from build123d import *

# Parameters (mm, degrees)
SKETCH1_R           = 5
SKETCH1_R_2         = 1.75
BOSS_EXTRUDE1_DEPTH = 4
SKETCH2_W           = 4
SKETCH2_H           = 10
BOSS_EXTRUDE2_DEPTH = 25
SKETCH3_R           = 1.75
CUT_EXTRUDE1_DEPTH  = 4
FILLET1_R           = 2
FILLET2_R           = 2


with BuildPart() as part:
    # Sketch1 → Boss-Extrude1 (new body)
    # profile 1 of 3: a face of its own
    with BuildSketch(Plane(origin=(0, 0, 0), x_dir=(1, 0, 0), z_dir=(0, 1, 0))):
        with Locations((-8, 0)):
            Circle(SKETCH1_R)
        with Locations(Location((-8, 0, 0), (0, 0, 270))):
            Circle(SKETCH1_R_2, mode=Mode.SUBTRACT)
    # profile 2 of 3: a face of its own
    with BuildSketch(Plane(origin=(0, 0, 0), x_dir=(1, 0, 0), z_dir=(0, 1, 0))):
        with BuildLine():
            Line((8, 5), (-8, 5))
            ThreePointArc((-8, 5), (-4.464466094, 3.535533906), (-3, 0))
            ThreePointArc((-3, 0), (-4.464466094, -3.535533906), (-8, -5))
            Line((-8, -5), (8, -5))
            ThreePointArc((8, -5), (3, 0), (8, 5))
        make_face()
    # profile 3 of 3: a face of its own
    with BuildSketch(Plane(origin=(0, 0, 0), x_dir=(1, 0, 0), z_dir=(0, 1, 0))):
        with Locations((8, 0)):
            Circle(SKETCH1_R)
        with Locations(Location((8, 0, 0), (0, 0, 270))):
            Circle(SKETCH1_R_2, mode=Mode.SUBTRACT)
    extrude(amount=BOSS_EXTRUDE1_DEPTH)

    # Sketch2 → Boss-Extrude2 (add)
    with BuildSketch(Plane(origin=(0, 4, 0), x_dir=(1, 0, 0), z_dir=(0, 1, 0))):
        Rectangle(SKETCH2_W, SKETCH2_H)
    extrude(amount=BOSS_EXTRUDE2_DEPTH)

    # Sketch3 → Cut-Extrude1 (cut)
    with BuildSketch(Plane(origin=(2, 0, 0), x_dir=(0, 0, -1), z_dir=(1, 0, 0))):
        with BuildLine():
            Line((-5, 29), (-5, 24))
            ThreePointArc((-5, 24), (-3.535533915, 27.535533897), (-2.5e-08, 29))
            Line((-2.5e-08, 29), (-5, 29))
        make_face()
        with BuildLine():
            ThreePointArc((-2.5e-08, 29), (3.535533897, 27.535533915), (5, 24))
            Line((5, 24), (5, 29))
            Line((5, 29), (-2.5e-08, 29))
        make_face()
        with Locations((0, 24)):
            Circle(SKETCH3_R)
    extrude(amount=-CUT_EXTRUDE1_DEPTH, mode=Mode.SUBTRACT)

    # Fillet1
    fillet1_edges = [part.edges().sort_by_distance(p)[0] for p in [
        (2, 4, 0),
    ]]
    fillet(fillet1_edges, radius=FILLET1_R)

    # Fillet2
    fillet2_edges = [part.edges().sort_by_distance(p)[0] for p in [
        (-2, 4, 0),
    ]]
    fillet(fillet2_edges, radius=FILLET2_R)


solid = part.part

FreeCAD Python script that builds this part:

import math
import FreeCAD as App
import Part
import Sketcher


def edges_at(feature, points):
    """Names of the edges that pass closest to the given points."""
    edges = feature.Shape.Edges
    near = lambda p: min(range(len(edges)), key=lambda i: edges[i].distToShape(Part.Vertex(*p))[0])
    return sorted({f"Edge{near(p) + 1}" for p in points})

doc = App.newDocument("Part")
body = doc.addObject("PartDesign::Body", "Body")

sketch1 = doc.addObject("Sketcher::SketchObject", "Sketch")
body.addObject(sketch1)
sketch1.AttachmentSupport = (doc.XZ_Plane, [""])
sketch1.MapMode = "FlatFace"
sketch1.addGeometry(Part.ArcOfCircle(Part.Circle(App.Vector(-8, 0, 0), App.Vector(0, 0, 1), 5), math.radians(90), math.radians(270)), False)
sketch1.addGeometry(Part.LineSegment(App.Vector(-8, 5, 0), App.Vector(8, 5, 0)), False)
sketch1.addGeometry(Part.ArcOfCircle(Part.Circle(App.Vector(8, 0, 0), App.Vector(0, 0, 1), 5), math.radians(-90), math.radians(90)), False)
sketch1.addGeometry(Part.LineSegment(App.Vector(8, -5, 0), App.Vector(-8, -5, 0)), False)
sketch1.addGeometry(Part.Circle(App.Vector(-8, 0, 0), App.Vector(0, 0, 1), 1.8), False)
sketch1.addGeometry(Part.Circle(App.Vector(8, 0, 0), App.Vector(0, 0, 1), 1.8), False)
sketch1.addConstraint(Sketcher.Constraint("Tangent", 0, 1, 1, 1))
sketch1.addConstraint(Sketcher.Constraint("Tangent", 1, 2, 2, 2))
sketch1.addConstraint(Sketcher.Constraint("Tangent", 2, 1, 3, 1))
sketch1.addConstraint(Sketcher.Constraint("Tangent", 3, 2, 0, 2))
sketch1.addConstraint(Sketcher.Constraint("Horizontal", 1))
sketch1.addConstraint(Sketcher.Constraint("Horizontal", 3))
sketch1.addConstraint(Sketcher.Constraint("Coincident", 4, 3, 0, 3))
sketch1.addConstraint(Sketcher.Constraint("Coincident", 5, 3, 2, 3))
sketch1.addConstraint(Sketcher.Constraint("Equal", 4, 5))
sketch1.addConstraint(Sketcher.Constraint("Symmetric", 0, 3, 2, 3, -1, 1))
sketch1.addConstraint(Sketcher.Constraint("Radius", 0, 5.0))
sketch1.addConstraint(Sketcher.Constraint("Diameter", 4, 3.5))
sketch1.addConstraint(Sketcher.Constraint("DistanceX", 1, 1, 1, 2, 16.0))
pad1 = doc.addObject("PartDesign::Pad", "Pad")
body.addObject(pad1)
pad1.Profile = sketch1
pad1.Length = 4
pad1.Reversed = True

sketch2 = doc.addObject("Sketcher::SketchObject", "Sketch001")
body.addObject(sketch2)
sketch2.AttachmentSupport = (doc.XZ_Plane, [""])
sketch2.MapMode = "FlatFace"
sketch2.AttachmentOffset = App.Placement(App.Vector(0, 0, -4), App.Rotation())
sketch2.addGeometry(Part.LineSegment(App.Vector(-2, -5, 0), App.Vector(-2, 5, 0)), False)
sketch2.addGeometry(Part.LineSegment(App.Vector(-2, 5, 0), App.Vector(2, 5, 0)), False)
sketch2.addGeometry(Part.LineSegment(App.Vector(2, 5, 0), App.Vector(2, -5, 0)), False)
sketch2.addGeometry(Part.LineSegment(App.Vector(2, -5, 0), App.Vector(-2, -5, 0)), False)
sketch2.addConstraint(Sketcher.Constraint("Coincident", 0, 2, 1, 1))
sketch2.addConstraint(Sketcher.Constraint("Coincident", 1, 2, 2, 1))
sketch2.addConstraint(Sketcher.Constraint("Coincident", 2, 2, 3, 1))
sketch2.addConstraint(Sketcher.Constraint("Coincident", 3, 2, 0, 1))
sketch2.addConstraint(Sketcher.Constraint("Vertical", 0))
sketch2.addConstraint(Sketcher.Constraint("Horizontal", 1))
sketch2.addConstraint(Sketcher.Constraint("Vertical", 2))
sketch2.addConstraint(Sketcher.Constraint("Horizontal", 3))
sketch2.addConstraint(Sketcher.Constraint("Symmetric", 0, 2, 2, 2, -1, 1))
sketch2.addConstraint(Sketcher.Constraint("DistanceX", 1, 1, 1, 2, 4.0))
sketch2.addConstraint(Sketcher.Constraint("DistanceY", 0, 1, 0, 2, 10.0))
pad2 = doc.addObject("PartDesign::Pad", "Pad001")
body.addObject(pad2)
pad2.Profile = sketch2
pad2.Length = 25
pad2.Reversed = True

sketch3 = doc.addObject("Sketcher::SketchObject", "Sketch002")
body.addObject(sketch3)
sketch3.AttachmentSupport = (doc.YZ_Plane, [""])
sketch3.MapMode = "FlatFace"
sketch3.AttachmentOffset = App.Placement(App.Vector(0, 0, 2), App.Rotation())
sketch3.addGeometry(Part.LineSegment(App.Vector(29, 5, 0), App.Vector(24, 5, 0)), False)
sketch3.addGeometry(Part.ArcOfCircle(Part.Circle(App.Vector(24, 0, 0), App.Vector(0, 0, 1), 5), math.radians(0), math.radians(90)), False)
sketch3.addGeometry(Part.LineSegment(App.Vector(29, 0, 0), App.Vector(29, 5, 0)), False)
sketch3.addGeometry(Part.ArcOfCircle(Part.Circle(App.Vector(24, 0, 0), App.Vector(0, 0, 1), 5), math.radians(-90), math.radians(0)), False)
sketch3.addGeometry(Part.LineSegment(App.Vector(24, -5, 0), App.Vector(29, -5, 0)), False)
sketch3.addGeometry(Part.LineSegment(App.Vector(29, -5, 0), App.Vector(29, 0, 0)), False)
sketch3.addGeometry(Part.Circle(App.Vector(24, 0, 0), App.Vector(0, 0, 1), 1.8), False)
sketch3.addConstraint(Sketcher.Constraint("Tangent", 0, 2, 1, 2))
sketch3.addConstraint(Sketcher.Constraint("Tangent", 1, 1, 2, 1))
sketch3.addConstraint(Sketcher.Constraint("Coincident", 2, 2, 0, 1))
sketch3.addConstraint(Sketcher.Constraint("Tangent", 3, 1, 4, 1))
sketch3.addConstraint(Sketcher.Constraint("Coincident", 4, 2, 5, 1))
sketch3.addConstraint(Sketcher.Constraint("Tangent", 5, 2, 3, 2))
sketch3.addConstraint(Sketcher.Constraint("Horizontal", 0))
sketch3.addConstraint(Sketcher.Constraint("Vertical", 2))
sketch3.addConstraint(Sketcher.Constraint("Horizontal", 4))
sketch3.addConstraint(Sketcher.Constraint("Vertical", 5))
sketch3.addConstraint(Sketcher.Constraint("Coincident", 3, 3, 1, 3))
sketch3.addConstraint(Sketcher.Constraint("Coincident", 6, 3, 1, 3))
sketch3.addConstraint(Sketcher.Constraint("Equal", 1, 3))
sketch3.addConstraint(Sketcher.Constraint("PointOnObject", 1, 3, -1))
sketch3.addConstraint(Sketcher.Constraint("Radius", 1, 5.0))
sketch3.addConstraint(Sketcher.Constraint("Diameter", 6, 3.5))
sketch3.addConstraint(Sketcher.Constraint("DistanceX", -1, 1, 1, 3, 24.0))
pocket1 = doc.addObject("PartDesign::Pocket", "Pocket")
body.addObject(pocket1)
pocket1.Profile = sketch3
pocket1.Length = 4
doc.recompute()

fillet = doc.addObject("PartDesign::Fillet", "Fillet")
body.addObject(fillet)
fillet.Base = (pocket1, edges_at(pocket1, [(2, 4, 0)]))
fillet.Radius = 2
doc.recompute()

fillet2 = doc.addObject("PartDesign::Fillet", "Fillet001")
body.addObject(fillet2)
fillet2.Base = (fillet, edges_at(fillet, [(-2, 4, 0)]))
fillet2.Radius = 2

doc.recompute()
